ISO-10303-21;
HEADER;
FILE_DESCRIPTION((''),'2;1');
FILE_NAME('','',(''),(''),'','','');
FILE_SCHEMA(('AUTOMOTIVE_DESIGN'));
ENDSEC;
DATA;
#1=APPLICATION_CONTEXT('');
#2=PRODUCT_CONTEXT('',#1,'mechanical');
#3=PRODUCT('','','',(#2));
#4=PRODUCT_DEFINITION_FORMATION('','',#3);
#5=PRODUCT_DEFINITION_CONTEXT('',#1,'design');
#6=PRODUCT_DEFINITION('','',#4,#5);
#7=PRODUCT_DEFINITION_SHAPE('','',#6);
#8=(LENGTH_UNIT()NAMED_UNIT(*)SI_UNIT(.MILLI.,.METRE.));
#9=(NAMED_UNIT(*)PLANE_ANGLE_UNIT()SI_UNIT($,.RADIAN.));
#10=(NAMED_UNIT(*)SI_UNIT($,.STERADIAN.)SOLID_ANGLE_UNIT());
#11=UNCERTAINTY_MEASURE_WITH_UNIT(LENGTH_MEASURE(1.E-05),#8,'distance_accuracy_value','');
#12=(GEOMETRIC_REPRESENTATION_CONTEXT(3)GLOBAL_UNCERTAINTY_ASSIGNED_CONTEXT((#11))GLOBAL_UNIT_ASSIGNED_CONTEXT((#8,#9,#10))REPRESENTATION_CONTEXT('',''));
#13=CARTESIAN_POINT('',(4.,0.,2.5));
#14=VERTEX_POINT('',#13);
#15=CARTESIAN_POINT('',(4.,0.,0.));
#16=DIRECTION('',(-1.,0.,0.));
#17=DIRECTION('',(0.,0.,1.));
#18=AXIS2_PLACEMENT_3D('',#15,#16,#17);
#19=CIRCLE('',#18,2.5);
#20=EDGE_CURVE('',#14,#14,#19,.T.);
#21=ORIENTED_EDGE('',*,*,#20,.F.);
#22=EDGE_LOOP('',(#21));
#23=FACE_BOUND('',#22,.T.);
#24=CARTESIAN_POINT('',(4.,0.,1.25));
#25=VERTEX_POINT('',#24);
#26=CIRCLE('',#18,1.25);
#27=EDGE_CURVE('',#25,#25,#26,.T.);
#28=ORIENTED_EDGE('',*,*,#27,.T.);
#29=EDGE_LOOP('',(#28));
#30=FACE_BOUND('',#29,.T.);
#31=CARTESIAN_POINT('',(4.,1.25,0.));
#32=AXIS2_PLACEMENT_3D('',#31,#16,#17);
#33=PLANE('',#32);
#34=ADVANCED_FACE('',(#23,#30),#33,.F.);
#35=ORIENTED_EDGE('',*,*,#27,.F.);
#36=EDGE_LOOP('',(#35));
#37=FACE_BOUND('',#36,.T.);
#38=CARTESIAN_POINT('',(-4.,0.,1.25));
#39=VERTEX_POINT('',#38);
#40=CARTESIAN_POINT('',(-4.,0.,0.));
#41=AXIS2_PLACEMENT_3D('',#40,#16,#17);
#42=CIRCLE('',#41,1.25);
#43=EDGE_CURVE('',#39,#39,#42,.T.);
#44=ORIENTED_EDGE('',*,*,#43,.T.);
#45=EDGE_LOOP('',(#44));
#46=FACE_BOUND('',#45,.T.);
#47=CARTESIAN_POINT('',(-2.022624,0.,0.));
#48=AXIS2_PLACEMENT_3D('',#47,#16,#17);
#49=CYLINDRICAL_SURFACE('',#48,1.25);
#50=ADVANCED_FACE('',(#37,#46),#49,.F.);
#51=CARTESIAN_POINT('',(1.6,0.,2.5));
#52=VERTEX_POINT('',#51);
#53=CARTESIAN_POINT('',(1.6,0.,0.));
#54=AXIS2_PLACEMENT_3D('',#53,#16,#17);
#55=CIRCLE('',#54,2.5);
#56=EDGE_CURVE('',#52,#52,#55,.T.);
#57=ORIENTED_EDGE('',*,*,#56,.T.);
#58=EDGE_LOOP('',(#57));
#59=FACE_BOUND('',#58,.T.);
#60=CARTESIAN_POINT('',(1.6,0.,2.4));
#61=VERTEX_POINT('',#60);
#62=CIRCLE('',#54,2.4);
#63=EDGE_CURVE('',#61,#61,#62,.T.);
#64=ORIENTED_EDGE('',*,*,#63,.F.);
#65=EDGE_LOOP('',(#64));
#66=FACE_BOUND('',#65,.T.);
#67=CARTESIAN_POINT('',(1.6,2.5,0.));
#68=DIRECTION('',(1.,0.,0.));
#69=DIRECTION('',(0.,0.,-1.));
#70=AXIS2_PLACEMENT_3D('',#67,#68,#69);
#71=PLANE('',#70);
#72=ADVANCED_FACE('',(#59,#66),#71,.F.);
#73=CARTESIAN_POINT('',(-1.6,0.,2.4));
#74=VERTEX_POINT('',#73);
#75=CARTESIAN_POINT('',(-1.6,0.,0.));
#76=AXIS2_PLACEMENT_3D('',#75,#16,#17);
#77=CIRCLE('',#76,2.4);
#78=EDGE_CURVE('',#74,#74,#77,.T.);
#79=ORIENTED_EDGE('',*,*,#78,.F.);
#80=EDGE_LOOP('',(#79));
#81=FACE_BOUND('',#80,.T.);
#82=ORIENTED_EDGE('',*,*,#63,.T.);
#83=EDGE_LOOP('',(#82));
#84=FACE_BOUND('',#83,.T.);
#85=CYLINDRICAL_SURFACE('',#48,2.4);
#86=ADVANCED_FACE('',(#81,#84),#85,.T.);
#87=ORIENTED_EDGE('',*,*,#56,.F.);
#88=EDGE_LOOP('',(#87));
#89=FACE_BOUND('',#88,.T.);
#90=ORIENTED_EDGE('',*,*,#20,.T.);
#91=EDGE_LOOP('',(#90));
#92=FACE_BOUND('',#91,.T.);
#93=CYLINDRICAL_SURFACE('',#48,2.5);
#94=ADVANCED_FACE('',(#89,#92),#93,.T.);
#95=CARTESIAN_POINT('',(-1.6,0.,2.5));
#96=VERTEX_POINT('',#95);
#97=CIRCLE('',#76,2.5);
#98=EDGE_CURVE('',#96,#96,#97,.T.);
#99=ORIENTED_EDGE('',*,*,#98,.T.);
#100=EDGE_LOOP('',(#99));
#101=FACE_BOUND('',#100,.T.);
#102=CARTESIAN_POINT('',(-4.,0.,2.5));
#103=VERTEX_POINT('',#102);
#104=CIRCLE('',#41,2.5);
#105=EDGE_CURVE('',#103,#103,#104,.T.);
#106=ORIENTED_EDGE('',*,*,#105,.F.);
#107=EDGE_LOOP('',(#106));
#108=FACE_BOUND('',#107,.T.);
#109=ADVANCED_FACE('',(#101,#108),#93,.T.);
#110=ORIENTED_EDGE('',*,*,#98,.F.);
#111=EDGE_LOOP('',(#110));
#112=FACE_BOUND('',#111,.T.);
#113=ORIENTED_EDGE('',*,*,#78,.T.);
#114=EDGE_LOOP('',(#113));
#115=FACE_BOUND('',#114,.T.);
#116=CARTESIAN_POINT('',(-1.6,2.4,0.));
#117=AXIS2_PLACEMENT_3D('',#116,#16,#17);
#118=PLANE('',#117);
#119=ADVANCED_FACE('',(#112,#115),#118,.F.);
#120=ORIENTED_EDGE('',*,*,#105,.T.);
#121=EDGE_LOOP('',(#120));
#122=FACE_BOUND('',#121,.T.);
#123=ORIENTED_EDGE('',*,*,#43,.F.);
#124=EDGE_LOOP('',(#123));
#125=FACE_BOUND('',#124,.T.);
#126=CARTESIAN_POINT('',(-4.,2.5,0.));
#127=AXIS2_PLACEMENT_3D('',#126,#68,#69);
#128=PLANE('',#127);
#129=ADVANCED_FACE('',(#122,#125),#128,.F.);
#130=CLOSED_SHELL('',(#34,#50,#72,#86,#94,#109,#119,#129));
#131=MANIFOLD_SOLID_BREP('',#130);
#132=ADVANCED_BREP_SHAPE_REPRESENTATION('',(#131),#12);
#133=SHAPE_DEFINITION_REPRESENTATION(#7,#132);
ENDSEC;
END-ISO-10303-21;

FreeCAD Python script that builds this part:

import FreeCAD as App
import Part
import Sketcher
from FreeCAD import Vector
Q = App.Units.Quantity


def add_polygon(sketch, points):
    """Adds a closed chain of lines whose ends are joined by coincident constraints."""
    first, n = sketch.GeometryCount, len(points)
    for a, b in zip(points, points[1:] + points[:1]):
        sketch.addGeometry(Part.LineSegment(App.Vector(*a, 0), App.Vector(*b, 0)), False)
    for i in range(n):
        sketch.addConstraint(Sketcher.Constraint("Coincident", first + i, 2, first + (i + 1) % n, 1))

doc = App.newDocument("Part")
body = doc.addObject("PartDesign::Body", "Body")

sketch1 = body.newObject("Sketcher::SketchObject", "Sketch")
sketch1.AttachmentSupport = (doc.getObject("XY_Plane"), [""])
sketch1.MapMode = "FlatFace"
add_polygon(sketch1, [(-4, 1.25), (4, 1.25), (4, 2.5), (1.6, 2.5), (1.6, 2.4), (-1.6, 2.4), (-1.6, 2.5), (-4, 2.5)])
sketch1.addConstraint(Sketcher.Constraint("Horizontal", 0))
sketch1.addConstraint(Sketcher.Constraint("Vertical", 1))
sketch1.addConstraint(Sketcher.Constraint("Horizontal", 2))
sketch1.addConstraint(Sketcher.Constraint("Vertical", 3))
sketch1.addConstraint(Sketcher.Constraint("Horizontal", 4))
sketch1.addConstraint(Sketcher.Constraint("Vertical", 5))
sketch1.addConstraint(Sketcher.Constraint("Horizontal", 6))
sketch1.addConstraint(Sketcher.Constraint("Vertical", 7))
sketch1.addConstraint(Sketcher.Constraint("Symmetric", 2, 2, 5, 2, -2))
sketch1.addConstraint(Sketcher.Constraint("Equal", 2, 6))
sketch1.addConstraint(Sketcher.Constraint("DistanceX", 0, 1, 0, 2, Q("8 mm")))
sketch1.addConstraint(Sketcher.Constraint("DistanceX", 2, 2, 2, 1, Q("2.4 mm")))
sketch1.addConstraint(Sketcher.Constraint("DistanceY", 3, 2, 3, 1, Q("0.1 mm")))
sketch1.addConstraint(Sketcher.Constraint("DistanceY", 1, 1, 1, 2, Q("1.25 mm")))
sketch1.addConstraint(Sketcher.Constraint("DistanceY", -1, 1, 1, 2, Q("2.5 mm")))
revolution = body.newObject("PartDesign::Revolution", "Revolution")
revolution.Profile = sketch1
revolution.ReferenceAxis = (sketch1, ["H_Axis"])
revolution.Angle = 360

doc.recompute()
